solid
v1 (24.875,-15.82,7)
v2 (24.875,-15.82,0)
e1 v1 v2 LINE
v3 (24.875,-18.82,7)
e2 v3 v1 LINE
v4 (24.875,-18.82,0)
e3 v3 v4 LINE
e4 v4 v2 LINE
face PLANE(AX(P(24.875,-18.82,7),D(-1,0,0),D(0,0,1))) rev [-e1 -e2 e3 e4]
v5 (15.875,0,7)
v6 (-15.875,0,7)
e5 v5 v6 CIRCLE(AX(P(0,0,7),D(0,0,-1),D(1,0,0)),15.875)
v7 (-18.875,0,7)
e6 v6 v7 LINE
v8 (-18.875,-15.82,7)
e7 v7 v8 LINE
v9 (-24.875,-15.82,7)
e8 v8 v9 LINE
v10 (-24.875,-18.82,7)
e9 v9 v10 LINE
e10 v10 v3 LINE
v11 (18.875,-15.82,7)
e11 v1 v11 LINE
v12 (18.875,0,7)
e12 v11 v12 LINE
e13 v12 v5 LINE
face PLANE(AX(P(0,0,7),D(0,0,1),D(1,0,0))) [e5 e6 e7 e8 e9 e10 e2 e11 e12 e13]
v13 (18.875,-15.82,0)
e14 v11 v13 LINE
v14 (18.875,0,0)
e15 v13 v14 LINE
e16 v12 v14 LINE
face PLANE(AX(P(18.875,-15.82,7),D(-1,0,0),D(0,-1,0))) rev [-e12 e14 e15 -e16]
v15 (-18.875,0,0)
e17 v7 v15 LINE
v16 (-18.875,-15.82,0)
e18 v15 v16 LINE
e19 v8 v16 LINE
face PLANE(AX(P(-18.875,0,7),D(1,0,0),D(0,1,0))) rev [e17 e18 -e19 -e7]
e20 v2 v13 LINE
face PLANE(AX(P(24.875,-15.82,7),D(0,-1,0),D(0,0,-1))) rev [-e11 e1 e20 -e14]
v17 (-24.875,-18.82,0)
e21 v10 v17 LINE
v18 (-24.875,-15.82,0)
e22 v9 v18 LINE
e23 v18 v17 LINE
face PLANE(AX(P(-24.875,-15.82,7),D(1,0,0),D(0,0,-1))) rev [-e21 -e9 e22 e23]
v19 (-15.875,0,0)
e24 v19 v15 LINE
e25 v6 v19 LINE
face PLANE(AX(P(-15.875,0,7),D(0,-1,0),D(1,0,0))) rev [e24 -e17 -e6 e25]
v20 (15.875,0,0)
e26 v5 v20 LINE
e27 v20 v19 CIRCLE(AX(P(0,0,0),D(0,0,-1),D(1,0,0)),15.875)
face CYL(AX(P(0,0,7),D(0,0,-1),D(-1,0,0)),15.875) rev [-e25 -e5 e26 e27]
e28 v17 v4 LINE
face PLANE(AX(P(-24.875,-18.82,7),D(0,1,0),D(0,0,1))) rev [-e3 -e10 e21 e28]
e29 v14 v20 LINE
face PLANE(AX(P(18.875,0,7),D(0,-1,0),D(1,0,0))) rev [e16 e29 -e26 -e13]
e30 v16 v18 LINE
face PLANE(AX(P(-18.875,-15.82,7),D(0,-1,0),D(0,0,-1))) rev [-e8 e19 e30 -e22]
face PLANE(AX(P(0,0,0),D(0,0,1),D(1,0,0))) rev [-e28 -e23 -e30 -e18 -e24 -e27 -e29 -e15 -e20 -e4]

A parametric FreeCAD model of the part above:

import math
import FreeCAD as App
import Part
import Sketcher

doc = App.newDocument("Part")
body = doc.addObject("PartDesign::Body", "Body")

# Sketch on XY plane
sketch1 = body.newObject("Sketcher::SketchObject", "Sketch")
sketch1.AttachmentSupport = (doc.getObject("XY_Plane"), [""])
sketch1.MapMode = "FlatFace"
sketch1.addGeometry([
    Part.LineSegment(App.Vector(-15.875, 0, 0), App.Vector(-18.875, 0, 0)),  # 0
    Part.LineSegment(App.Vector(-18.875, 0, 0), App.Vector(-18.875, -15.82, 0)),  # 1
    Part.LineSegment(App.Vector(-18.875, -15.82, 0), App.Vector(-24.875, -15.82, 0)),  # 2
    Part.LineSegment(App.Vector(-24.875, -15.82, 0), App.Vector(-24.875, -18.82, 0)),  # 3
    Part.LineSegment(App.Vector(-24.875, -18.82, 0), App.Vector(24.875, -18.82, 0)),  # 4
    Part.LineSegment(App.Vector(24.875, -18.82, 0), App.Vector(24.875, -15.82, 0)),  # 5
    Part.LineSegment(App.Vector(24.875, -15.82, 0), App.Vector(18.875, -15.82, 0)),  # 6
    Part.LineSegment(App.Vector(18.875, -15.82, 0), App.Vector(18.875, 0, 0)),  # 7
    Part.LineSegment(App.Vector(18.875, 0, 0), App.Vector(15.875, 0, 0)),  # 8
    Part.ArcOfCircle(Part.Circle(App.Vector(0, 0, 0), App.Vector(0, 0, 1), 15.875), math.radians(180), math.radians(360)),  # 9
], False)
sketch1.addConstraint([
    Sketcher.Constraint("Coincident", 0, 2, 1, 1),
    Sketcher.Constraint("Coincident", 1, 2, 2, 1),
    Sketcher.Constraint("Coincident", 2, 2, 3, 1),
    Sketcher.Constraint("Coincident", 3, 2, 4, 1),
    Sketcher.Constraint("Coincident", 4, 2, 5, 1),
    Sketcher.Constraint("Coincident", 5, 2, 6, 1),
    Sketcher.Constraint("Coincident", 6, 2, 7, 1),
    Sketcher.Constraint("Coincident", 7, 2, 8, 1),
    Sketcher.Constraint("Coincident", 8, 2, 9, 2),
    Sketcher.Constraint("Coincident", 9, 1, 0, 1),
    Sketcher.Constraint("Horizontal", 0),
    Sketcher.Constraint("Vertical", 1),
    Sketcher.Constraint("Horizontal", 2),
    Sketcher.Constraint("Vertical", 3),
    Sketcher.Constraint("Horizontal", 4),
    Sketcher.Constraint("Vertical", 5),
    Sketcher.Constraint("Horizontal", 6),
    Sketcher.Constraint("Vertical", 7),
    Sketcher.Constraint("Horizontal", 8),
    Sketcher.Constraint("Coincident", 9, 3, -1, 1),
    Sketcher.Constraint("Symmetric", 0, 2, 7, 2, -1, 1),
    Sketcher.Constraint("Symmetric", 2, 2, 5, 2, -2),
    Sketcher.Constraint("PointOnObject", 0, 2, -1),
    Sketcher.Constraint("Equal", 8, 3),
    Sketcher.Constraint("DistanceX", 0, 2, 0, 1, 3.0),
    Sketcher.Constraint("DistanceX", 2, 2, 2, 1, 6.0),
    Sketcher.Constraint("Radius", 9, 15.875),
    Sketcher.Constraint("DistanceY", 1, 2, 1, 1, 15.82),
])
pad1 = body.newObject("PartDesign::Pad", "Pad")
pad1.Profile = sketch1
pad1.Length = 7

doc.recompute()
